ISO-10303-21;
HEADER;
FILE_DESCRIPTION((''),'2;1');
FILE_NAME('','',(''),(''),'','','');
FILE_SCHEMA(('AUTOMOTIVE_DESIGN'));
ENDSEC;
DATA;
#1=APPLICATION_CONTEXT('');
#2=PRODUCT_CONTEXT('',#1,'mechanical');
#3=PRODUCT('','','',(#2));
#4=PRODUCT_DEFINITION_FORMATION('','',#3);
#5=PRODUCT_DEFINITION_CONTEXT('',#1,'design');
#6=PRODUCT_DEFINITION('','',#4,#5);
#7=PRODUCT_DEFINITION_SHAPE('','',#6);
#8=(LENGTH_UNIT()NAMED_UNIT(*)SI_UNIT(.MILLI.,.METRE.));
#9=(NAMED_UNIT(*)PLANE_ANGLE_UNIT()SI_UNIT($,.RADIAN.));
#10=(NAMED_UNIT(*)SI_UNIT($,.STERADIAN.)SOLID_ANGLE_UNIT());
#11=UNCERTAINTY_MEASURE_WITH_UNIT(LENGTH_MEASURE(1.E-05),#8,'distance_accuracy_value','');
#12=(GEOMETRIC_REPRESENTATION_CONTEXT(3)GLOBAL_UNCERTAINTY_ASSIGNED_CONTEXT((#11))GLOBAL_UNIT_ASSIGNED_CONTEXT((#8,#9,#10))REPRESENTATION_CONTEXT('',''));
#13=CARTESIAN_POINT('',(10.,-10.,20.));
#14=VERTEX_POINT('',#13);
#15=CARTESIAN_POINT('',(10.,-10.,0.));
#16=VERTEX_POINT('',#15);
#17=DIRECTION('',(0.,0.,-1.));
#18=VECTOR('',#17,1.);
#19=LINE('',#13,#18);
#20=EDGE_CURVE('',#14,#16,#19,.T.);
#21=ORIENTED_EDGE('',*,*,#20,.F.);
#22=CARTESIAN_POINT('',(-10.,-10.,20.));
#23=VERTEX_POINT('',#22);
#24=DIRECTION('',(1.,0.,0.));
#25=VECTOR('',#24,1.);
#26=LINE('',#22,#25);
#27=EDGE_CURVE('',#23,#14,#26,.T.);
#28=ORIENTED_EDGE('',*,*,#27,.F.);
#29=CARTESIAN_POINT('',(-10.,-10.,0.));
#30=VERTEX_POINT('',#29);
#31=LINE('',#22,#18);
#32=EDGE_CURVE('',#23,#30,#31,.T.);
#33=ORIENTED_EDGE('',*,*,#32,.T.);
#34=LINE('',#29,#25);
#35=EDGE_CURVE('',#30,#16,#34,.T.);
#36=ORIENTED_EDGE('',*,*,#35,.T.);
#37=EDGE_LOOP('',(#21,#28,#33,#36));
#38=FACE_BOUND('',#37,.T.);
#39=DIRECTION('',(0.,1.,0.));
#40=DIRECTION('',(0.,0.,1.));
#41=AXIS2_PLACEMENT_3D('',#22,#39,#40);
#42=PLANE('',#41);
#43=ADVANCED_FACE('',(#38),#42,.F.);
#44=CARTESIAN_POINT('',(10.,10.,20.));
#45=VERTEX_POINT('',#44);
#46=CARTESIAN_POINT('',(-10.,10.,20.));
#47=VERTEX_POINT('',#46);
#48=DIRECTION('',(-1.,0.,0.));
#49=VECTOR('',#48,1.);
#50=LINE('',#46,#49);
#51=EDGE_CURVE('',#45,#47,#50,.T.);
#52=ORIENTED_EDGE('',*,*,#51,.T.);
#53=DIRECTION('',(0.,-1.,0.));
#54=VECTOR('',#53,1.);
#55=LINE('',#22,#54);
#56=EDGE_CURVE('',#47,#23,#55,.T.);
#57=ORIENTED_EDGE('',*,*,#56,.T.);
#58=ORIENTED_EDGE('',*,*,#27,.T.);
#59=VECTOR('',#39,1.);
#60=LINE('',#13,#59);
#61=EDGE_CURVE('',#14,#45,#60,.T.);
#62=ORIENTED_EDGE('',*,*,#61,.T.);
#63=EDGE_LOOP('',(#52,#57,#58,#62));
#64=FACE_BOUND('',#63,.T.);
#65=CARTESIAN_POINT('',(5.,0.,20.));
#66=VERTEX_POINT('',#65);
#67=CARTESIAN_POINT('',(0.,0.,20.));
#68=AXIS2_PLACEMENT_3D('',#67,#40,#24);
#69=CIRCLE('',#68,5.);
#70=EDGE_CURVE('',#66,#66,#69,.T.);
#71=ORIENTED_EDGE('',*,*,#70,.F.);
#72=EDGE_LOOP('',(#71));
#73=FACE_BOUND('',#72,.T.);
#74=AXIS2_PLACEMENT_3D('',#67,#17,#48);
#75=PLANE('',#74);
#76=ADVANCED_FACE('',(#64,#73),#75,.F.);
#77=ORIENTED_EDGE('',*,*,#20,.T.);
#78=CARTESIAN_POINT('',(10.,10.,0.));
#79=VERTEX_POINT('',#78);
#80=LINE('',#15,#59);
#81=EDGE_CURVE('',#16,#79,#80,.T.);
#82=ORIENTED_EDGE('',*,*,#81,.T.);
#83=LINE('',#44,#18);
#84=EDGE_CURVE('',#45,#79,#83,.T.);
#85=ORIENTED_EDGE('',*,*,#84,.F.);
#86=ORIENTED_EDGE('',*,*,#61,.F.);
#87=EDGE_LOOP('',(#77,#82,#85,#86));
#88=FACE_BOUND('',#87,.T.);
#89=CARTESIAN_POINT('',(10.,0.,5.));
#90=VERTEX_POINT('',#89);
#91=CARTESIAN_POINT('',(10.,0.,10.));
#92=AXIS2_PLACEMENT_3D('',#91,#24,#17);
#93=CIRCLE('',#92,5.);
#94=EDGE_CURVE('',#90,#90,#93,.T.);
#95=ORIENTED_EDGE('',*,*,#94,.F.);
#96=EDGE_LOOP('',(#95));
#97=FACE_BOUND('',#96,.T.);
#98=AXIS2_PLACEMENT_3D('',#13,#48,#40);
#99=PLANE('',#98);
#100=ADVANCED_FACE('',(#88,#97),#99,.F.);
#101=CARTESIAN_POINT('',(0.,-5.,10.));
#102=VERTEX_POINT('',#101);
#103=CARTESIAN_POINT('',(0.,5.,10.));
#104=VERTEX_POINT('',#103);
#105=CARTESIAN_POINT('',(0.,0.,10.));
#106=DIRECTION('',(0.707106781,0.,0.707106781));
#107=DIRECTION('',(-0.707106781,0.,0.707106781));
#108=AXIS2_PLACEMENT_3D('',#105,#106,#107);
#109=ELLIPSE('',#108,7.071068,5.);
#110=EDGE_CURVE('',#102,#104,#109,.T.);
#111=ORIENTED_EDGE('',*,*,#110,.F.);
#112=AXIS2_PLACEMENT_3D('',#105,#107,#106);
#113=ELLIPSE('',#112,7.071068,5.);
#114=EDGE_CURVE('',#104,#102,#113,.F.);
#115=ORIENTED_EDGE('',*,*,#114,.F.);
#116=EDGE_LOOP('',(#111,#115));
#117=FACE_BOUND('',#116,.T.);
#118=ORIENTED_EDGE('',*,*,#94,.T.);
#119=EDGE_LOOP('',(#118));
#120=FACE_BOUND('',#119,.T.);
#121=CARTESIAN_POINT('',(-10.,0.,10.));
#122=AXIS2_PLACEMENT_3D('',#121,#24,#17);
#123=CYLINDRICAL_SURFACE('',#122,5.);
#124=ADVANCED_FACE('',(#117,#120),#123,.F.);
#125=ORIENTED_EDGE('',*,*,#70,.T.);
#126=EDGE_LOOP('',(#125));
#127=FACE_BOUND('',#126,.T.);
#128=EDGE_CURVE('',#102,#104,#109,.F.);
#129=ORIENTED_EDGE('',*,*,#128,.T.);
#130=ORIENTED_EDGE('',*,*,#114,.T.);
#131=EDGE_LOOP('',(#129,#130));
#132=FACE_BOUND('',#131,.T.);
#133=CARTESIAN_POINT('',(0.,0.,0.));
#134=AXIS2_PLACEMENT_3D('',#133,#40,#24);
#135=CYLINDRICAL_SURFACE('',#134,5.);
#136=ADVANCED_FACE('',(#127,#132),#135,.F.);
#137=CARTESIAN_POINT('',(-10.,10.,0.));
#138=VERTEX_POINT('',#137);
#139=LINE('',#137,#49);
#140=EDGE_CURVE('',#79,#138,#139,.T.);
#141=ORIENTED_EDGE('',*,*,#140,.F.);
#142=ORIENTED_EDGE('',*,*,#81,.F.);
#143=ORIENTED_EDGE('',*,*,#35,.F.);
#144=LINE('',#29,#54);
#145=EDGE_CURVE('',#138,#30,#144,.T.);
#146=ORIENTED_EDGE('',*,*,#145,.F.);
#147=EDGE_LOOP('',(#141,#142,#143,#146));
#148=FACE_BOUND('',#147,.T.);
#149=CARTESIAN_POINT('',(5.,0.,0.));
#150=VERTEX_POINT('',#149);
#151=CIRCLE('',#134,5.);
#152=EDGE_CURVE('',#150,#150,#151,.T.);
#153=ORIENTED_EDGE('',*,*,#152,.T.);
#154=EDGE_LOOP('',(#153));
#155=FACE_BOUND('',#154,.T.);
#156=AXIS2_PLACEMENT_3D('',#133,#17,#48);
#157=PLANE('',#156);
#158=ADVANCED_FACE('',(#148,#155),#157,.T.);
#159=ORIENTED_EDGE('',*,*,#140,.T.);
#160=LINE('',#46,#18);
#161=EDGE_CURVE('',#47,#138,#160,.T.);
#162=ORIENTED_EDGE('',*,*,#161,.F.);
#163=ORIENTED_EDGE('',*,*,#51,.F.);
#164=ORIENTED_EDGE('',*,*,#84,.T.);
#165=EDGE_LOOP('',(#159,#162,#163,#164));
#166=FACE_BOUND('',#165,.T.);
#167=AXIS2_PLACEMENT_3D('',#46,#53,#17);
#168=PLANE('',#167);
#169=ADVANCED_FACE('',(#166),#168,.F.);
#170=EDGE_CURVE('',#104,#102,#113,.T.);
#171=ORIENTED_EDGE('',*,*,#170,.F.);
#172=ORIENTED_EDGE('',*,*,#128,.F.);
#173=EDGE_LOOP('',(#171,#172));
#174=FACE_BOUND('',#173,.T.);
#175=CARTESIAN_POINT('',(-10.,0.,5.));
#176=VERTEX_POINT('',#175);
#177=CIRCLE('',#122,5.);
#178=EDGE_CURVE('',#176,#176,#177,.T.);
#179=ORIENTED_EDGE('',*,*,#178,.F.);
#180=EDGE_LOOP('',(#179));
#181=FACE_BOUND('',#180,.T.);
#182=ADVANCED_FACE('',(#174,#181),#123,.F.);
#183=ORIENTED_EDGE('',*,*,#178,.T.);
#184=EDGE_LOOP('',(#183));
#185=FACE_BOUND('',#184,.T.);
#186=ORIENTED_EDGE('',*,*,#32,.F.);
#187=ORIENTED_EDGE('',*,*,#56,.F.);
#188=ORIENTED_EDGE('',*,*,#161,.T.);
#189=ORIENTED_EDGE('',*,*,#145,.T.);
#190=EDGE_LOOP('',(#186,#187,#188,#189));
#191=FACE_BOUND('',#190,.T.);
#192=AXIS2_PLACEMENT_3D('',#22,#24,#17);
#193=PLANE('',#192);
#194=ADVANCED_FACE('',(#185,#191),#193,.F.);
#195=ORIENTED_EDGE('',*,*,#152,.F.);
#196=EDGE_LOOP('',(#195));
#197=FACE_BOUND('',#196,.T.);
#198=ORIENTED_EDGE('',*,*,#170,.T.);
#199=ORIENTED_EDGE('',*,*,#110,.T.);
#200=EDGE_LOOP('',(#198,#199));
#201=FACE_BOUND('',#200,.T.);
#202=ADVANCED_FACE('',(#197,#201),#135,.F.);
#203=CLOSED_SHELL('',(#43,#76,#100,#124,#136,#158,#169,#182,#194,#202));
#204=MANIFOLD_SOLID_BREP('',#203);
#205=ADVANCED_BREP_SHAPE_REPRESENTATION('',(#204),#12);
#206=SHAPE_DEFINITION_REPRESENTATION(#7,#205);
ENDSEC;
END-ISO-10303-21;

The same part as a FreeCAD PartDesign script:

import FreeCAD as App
import Part
import Sketcher
from FreeCAD import Vector


def add_polygon(sketch, points):
    """Adds a closed chain of lines whose ends are joined by coincident constraints."""
    first, n = sketch.GeometryCount, len(points)
    for a, b in zip(points, points[1:] + points[:1]):
        sketch.addGeometry(Part.LineSegment(App.Vector(*a, 0), App.Vector(*b, 0)), False)
    for i in range(n):
        sketch.addConstraint(Sketcher.Constraint("Coincident", first + i, 2, first + (i + 1) % n, 1))

doc = App.newDocument("Part")
body = doc.addObject("PartDesign::Body", "Body")

sketch1 = doc.addObject("Sketcher::SketchObject", "Sketch")
body.addObject(sketch1)
sketch1.AttachmentSupport = (doc.XY_Plane, [""])
sketch1.MapMode = "FlatFace"
add_polygon(sketch1, [(-10, 10), (-10, -10), (10, -10), (10, 10)])
sketch1.addConstraint(Sketcher.Constraint("Vertical", 0))
sketch1.addConstraint(Sketcher.Constraint("Horizontal", 1))
sketch1.addConstraint(Sketcher.Constraint("Vertical", 2))
sketch1.addConstraint(Sketcher.Constraint("Horizontal", 3))
sketch1.addConstraint(Sketcher.Constraint("Symmetric", 0, 2, 2, 2, -1, 1))
sketch1.addConstraint(Sketcher.Constraint("Equal", 3, 0))
sketch1.addConstraint(Sketcher.Constraint("DistanceX", 1, 1, 1, 2, 20.0))
pad1 = doc.addObject("PartDesign::Pad", "Pad")
body.addObject(pad1)
pad1.Profile = sketch1
pad1.Length = 20

sketch2 = doc.addObject("Sketcher::SketchObject", "Sketch001")
body.addObject(sketch2)
sketch2.AttachmentSupport = (doc.XY_Plane, [""])
sketch2.MapMode = "FlatFace"
sketch2.AttachmentOffset = App.Placement(Vector(0, 0, 20), App.Rotation())
sketch2.addGeometry(Part.Circle(Vector(0, 0, 0), Vector(0, 0, 1), 5), False)
sketch2.addConstraint(Sketcher.Constraint("Coincident", 0, 3, -1, 1))
sketch2.addConstraint(Sketcher.Constraint("Diameter", 0, 10.0))
pocket1 = doc.addObject("PartDesign::Pocket", "Pocket")
body.addObject(pocket1)
pocket1.Profile = sketch2
pocket1.Length = 20

sketch3 = doc.addObject("Sketcher::SketchObject", "Sketch002")
body.addObject(sketch3)
sketch3.AttachmentSupport = (doc.YZ_Plane, [""])
sketch3.MapMode = "FlatFace"
sketch3.AttachmentOffset = App.Placement(Vector(0, 0, 10), App.Rotation())
sketch3.addGeometry(Part.Circle(Vector(0, 10, 0), Vector(0, 0, 1), 5), False)
sketch3.addConstraint(Sketcher.Constraint("PointOnObject", 0, 3, -2))
sketch3.addConstraint(Sketcher.Constraint("Diameter", 0, 10.0))
sketch3.addConstraint(Sketcher.Constraint("DistanceY", -1, 1, 0, 3, 10.0))
pocket2 = doc.addObject("PartDesign::Pocket", "Pocket001")
body.addObject(pocket2)
pocket2.Profile = sketch3
pocket2.Length = 20

doc.recompute()
